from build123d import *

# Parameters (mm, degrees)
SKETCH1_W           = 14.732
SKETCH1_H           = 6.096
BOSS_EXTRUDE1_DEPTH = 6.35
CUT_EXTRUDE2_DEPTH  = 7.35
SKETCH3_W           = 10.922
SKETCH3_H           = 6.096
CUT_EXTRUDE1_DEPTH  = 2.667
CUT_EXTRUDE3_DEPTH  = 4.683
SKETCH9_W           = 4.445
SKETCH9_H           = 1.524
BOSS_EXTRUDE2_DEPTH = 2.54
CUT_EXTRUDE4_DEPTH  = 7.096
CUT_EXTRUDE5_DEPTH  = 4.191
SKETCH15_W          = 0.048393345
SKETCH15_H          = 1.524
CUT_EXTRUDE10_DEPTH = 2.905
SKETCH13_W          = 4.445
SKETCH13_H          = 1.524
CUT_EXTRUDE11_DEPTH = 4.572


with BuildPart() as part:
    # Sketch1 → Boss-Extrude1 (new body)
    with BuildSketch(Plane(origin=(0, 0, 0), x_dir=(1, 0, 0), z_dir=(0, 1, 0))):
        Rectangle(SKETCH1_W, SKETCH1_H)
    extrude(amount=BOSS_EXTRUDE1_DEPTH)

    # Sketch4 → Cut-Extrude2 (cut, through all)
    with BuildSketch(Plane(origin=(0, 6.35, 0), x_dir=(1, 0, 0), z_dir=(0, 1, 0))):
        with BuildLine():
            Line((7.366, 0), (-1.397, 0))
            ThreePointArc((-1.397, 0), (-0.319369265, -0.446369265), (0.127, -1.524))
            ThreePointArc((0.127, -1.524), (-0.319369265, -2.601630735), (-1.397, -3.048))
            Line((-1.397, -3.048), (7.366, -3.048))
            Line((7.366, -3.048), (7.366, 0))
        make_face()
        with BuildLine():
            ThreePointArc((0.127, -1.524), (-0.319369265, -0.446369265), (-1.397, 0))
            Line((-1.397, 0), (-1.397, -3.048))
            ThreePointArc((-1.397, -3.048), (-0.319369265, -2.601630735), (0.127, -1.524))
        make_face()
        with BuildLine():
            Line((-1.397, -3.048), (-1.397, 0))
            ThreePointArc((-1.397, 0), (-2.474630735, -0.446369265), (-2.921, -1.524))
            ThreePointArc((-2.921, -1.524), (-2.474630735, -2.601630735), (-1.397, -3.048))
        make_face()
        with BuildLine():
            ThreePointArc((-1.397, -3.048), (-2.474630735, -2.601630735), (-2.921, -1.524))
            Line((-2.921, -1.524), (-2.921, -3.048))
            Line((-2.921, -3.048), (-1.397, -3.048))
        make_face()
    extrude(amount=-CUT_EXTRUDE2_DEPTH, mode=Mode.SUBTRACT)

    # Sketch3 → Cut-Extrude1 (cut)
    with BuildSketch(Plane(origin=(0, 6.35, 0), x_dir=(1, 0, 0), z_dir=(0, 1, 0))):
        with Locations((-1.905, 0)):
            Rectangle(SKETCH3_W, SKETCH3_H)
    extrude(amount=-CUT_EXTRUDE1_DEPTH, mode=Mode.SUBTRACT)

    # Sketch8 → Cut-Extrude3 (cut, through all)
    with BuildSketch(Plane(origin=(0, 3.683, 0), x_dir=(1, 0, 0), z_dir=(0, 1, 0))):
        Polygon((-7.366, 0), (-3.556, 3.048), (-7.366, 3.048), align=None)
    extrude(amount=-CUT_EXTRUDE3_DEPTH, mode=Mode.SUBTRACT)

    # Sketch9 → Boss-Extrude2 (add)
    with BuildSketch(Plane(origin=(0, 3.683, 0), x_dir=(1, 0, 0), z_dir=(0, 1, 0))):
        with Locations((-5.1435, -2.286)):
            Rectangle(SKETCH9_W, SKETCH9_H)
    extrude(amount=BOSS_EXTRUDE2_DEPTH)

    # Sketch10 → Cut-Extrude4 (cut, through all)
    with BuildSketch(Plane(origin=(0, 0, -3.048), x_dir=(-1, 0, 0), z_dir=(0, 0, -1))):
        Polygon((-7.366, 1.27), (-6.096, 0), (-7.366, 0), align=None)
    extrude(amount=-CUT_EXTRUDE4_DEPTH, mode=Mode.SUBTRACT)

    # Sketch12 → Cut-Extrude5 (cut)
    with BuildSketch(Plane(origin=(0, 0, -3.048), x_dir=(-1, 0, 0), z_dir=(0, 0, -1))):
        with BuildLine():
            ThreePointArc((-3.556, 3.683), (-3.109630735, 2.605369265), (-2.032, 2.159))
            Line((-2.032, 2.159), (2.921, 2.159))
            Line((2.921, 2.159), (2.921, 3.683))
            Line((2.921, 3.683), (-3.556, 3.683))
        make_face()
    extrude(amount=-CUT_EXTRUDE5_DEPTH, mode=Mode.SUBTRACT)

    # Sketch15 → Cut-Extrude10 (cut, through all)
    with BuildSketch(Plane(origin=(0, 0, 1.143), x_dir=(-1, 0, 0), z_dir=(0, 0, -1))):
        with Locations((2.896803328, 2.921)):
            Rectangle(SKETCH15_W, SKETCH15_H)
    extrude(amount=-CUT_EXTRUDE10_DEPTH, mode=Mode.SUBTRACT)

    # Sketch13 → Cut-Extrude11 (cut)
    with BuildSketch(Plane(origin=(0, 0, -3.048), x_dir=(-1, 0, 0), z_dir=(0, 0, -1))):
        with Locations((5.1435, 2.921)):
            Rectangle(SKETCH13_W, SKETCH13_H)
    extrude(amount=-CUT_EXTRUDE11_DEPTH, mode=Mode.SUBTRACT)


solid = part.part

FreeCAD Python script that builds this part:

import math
import FreeCAD as App
import Part
import Sketcher
from FreeCAD import Vector
Q = App.Units.Quantity

doc = App.newDocument("Part")
body = doc.addObject("PartDesign::Body", "Body")

sketch1 = doc.addObject("Sketcher::SketchObject", "Sketch")
body.addObject(sketch1)
sketch1.AttachmentSupport = (doc.XZ_Plane, [""])
sketch1.MapMode = "FlatFace"
sketch1.addGeometry(Part.LineSegment(Vector(-7, -3, 0), Vector(-7, 3, 0)), False)
sketch1.addGeometry(Part.LineSegment(Vector(-7, 3, 0), Vector(7, 3, 0)), False)
sketch1.addGeometry(Part.LineSegment(Vector(7, 3, 0), Vector(7, -3, 0)), False)
sketch1.addGeometry(Part.LineSegment(Vector(7, -3, 0), Vector(-7, -3, 0)), False)
sketch1.addConstraint(Sketcher.Constraint("Coincident", 0, 2, 1, 1))
sketch1.addConstraint(Sketcher.Constraint("Coincident", 1, 2, 2, 1))
sketch1.addConstraint(Sketcher.Constraint("Coincident", 2, 2, 3, 1))
sketch1.addConstraint(Sketcher.Constraint("Coincident", 3, 2, 0, 1))
sketch1.addConstraint(Sketcher.Constraint("Vertical", 0))
sketch1.addConstraint(Sketcher.Constraint("Horizontal", 1))
sketch1.addConstraint(Sketcher.Constraint("Vertical", 2))
sketch1.addConstraint(Sketcher.Constraint("Horizontal", 3))
sketch1.addConstraint(Sketcher.Constraint("Symmetric", 0, 2, 2, 2, -1, 1))
sketch1.addConstraint(Sketcher.Constraint("DistanceX", 1, 1, 1, 2, Q("0.58 in")))
sketch1.addConstraint(Sketcher.Constraint("DistanceY", 0, 1, 0, 2, Q("0.24 in")))
pad1 = doc.addObject("PartDesign::Pad", "Pad")
body.addObject(pad1)
pad1.Profile = sketch1
pad1.Length = Q("0.25 in")
pad1.Reversed = True

sketch2 = doc.addObject("Sketcher::SketchObject", "Sketch001")
body.addObject(sketch2)
sketch2.AttachmentSupport = (doc.XZ_Plane, [""])
sketch2.MapMode = "FlatFace"
sketch2.AttachmentOffset = App.Placement(Vector(0, 0, -0.25 * 25.4), App.Rotation())
sketch2.addGeometry(Part.LineSegment(Vector(7.4, 3, 0), Vector(7.4, 0, 0)), False)
sketch2.addGeometry(Part.LineSegment(Vector(7.4, 0, 0), Vector(-1.4, 0, 0)), False)
sketch2.addGeometry(Part.ArcOfCircle(Part.Circle(Vector(-1.4, 1.5, 0), Vector(0, 0, 1), 1.5), math.radians(180), math.radians(270)), False)
sketch2.addGeometry(Part.LineSegment(Vector(-2.9, 1.5, 0), Vector(-2.9, 3, 0)), False)
sketch2.addGeometry(Part.LineSegment(Vector(-2.9, 3, 0), Vector(7.4, 3, 0)), False)
sketch2.addConstraint(Sketcher.Constraint("Coincident", 0, 2, 1, 1))
sketch2.addConstraint(Sketcher.Constraint("Tangent", 1, 2, 2, 2))
sketch2.addConstraint(Sketcher.Constraint("Tangent", 2, 1, 3, 1))
sketch2.addConstraint(Sketcher.Constraint("Coincident", 3, 2, 4, 1))
sketch2.addConstraint(Sketcher.Constraint("Coincident", 4, 2, 0, 1))
sketch2.addConstraint(Sketcher.Constraint("Vertical", 0))
sketch2.addConstraint(Sketcher.Constraint("Horizontal", 1))
sketch2.addConstraint(Sketcher.Constraint("Vertical", 3))
sketch2.addConstraint(Sketcher.Constraint("Horizontal", 4))
sketch2.addConstraint(Sketcher.Constraint("PointOnObject", 0, 2, -1))
sketch2.addConstraint(Sketcher.Constraint("Radius", 2, Q("0.06 in")))
sketch2.addConstraint(Sketcher.Constraint("DistanceY", 0, 2, 0, 1, Q("0.12 in")))
sketch2.addConstraint(Sketcher.Constraint("DistanceX", 1, 2, 1, 1, Q("0.345 in")))
sketch2.addConstraint(Sketcher.Constraint("DistanceX", -1, 1, 0, 2, Q("0.29 in")))
pocket1 = doc.addObject("PartDesign::Pocket", "Pocket")
body.addObject(pocket1)
pocket1.Profile = sketch2
pocket1.Type = "ThroughAll"
pocket1.Reversed = True

sketch3 = doc.addObject("Sketcher::SketchObject", "Sketch002")
body.addObject(sketch3)
sketch3.AttachmentSupport = (doc.XZ_Plane, [""])
sketch3.MapMode = "FlatFace"
sketch3.AttachmentOffset = App.Placement(Vector(0, 0, -0.25 * 25.4), App.Rotation())
sketch3.addGeometry(Part.LineSegment(Vector(-7, -3, 0), Vector(-7, 3, 0)), False)
sketch3.addGeometry(Part.LineSegment(Vector(-7, 3, 0), Vector(4, 3, 0)), False)
sketch3.addGeometry(Part.LineSegment(Vector(4, 3, 0), Vector(4, -3, 0)), False)
sketch3.addGeometry(Part.LineSegment(Vector(4, -3, 0), Vector(-7, -3, 0)), False)
sketch3.addConstraint(Sketcher.Constraint("Coincident", 0, 2, 1, 1))
sketch3.addConstraint(Sketcher.Constraint("Coincident", 1, 2, 2, 1))
sketch3.addConstraint(Sketcher.Constraint("Coincident", 2, 2, 3, 1))
sketch3.addConstraint(Sketcher.Constraint("Coincident", 3, 2, 0, 1))
sketch3.addConstraint(Sketcher.Constraint("Vertical", 0))
sketch3.addConstraint(Sketcher.Constraint("Horizontal", 1))
sketch3.addConstraint(Sketcher.Constraint("Vertical", 2))
sketch3.addConstraint(Sketcher.Constraint("Horizontal", 3))
sketch3.addConstraint(Sketcher.Constraint("DistanceX", 1, 1, 1, 2, Q("0.43 in")))
sketch3.addConstraint(Sketcher.Constraint("DistanceY", 0, 1, 0, 2, Q("0.24 in")))
sketch3.addConstraint(Sketcher.Constraint("DistanceX", 0, 2, -1, 1, Q("0.29 in")))
sketch3.addConstraint(Sketcher.Constraint("DistanceY", -1, 1, 0, 2, Q("0.12 in")))
pocket2 = doc.addObject("PartDesign::Pocket", "Pocket001")
body.addObject(pocket2)
pocket2.Profile = sketch3
pocket2.Length = Q("0.105 in")
pocket2.Reversed = True

sketch4 = doc.addObject("Sketcher::SketchObject", "Sketch003")
body.addObject(sketch4)
sketch4.AttachmentSupport = (doc.XZ_Plane, [""])
sketch4.MapMode = "FlatFace"
sketch4.AttachmentOffset = App.Placement(Vector(0, 0, -0.145 * 25.4), App.Rotation())
sketch4.addGeometry(Part.LineSegment(Vector(-7.4, 0, 0), Vector(-3.6, -3, 0)), False)
sketch4.addGeometry(Part.LineSegment(Vector(-3.6, -3, 0), Vector(-7.4, -3, 0)), False)
sketch4.addGeometry(Part.LineSegment(Vector(-7.4, -3, 0), Vector(-7.4, 0, 0)), False)
sketch4.addConstraint(Sketcher.Constraint("Coincident", 0, 2, 1, 1))
sketch4.addConstraint(Sketcher.Constraint("Coincident", 1, 2, 2, 1))
sketch4.addConstraint(Sketcher.Constraint("Coincident", 2, 2, 0, 1))
sketch4.addConstraint(Sketcher.Constraint("Horizontal", 1))
sketch4.addConstraint(Sketcher.Constraint("Vertical", 2))
sketch4.addConstraint(Sketcher.Constraint("PointOnObject", 2, 2, -1))
sketch4.addConstraint(Sketcher.Constraint("DistanceX", 1, 2, 1, 1, Q("0.15 in")))
sketch4.addConstraint(Sketcher.Constraint("DistanceY", 2, 1, 2, 2, Q("0.12 in")))
sketch4.addConstraint(Sketcher.Constraint("DistanceX", 0, 2, -1, 1, Q("0.14 in")))
pocket3 = doc.addObject("PartDesign::Pocket", "Pocket002")
body.addObject(pocket3)
pocket3.Profile = sketch4
pocket3.Type = "ThroughAll"
pocket3.Reversed = True

sketch5 = doc.addObject("Sketcher::SketchObject", "Sketch004")
body.addObject(sketch5)
sketch5.AttachmentSupport = (doc.XZ_Plane, [""])
sketch5.MapMode = "FlatFace"
sketch5.AttachmentOffset = App.Placement(Vector(0, 0, -0.145 * 25.4), App.Rotation())
sketch5.addGeometry(Part.LineSegment(Vector(-7.4, 1.5, 0), Vector(-7.4, 3, 0)), False)
sketch5.addGeometry(Part.LineSegment(Vector(-7.4, 3, 0), Vector(-2.9, 3, 0)), False)
sketch5.addGeometry(Part.LineSegment(Vector(-2.9, 3, 0), Vector(-2.9, 1.5, 0)), False)
sketch5.addGeometry(Part.LineSegment(Vector(-2.9, 1.5, 0), Vector(-7.4, 1.5, 0)), False)
sketch5.addConstraint(Sketcher.Constraint("Coincident", 0, 2, 1, 1))
sketch5.addConstraint(Sketcher.Constraint("Coincident", 1, 2, 2, 1))
sketch5.addConstraint(Sketcher.Constraint("Coincident", 2, 2, 3, 1))
sketch5.addConstraint(Sketcher.Constraint("Coincident", 3, 2, 0, 1))
sketch5.addConstraint(Sketcher.Constraint("Vertical", 0))
sketch5.addConstraint(Sketcher.Constraint("Horizontal", 1))
sketch5.addConstraint(Sketcher.Constraint("Vertical", 2))
sketch5.addConstraint(Sketcher.Constraint("Horizontal", 3))
sketch5.addConstraint(Sketcher.Constraint("DistanceY", 0, 1, 0, 2, Q("0.06 in")))
sketch5.addConstraint(Sketcher.Constraint("DistanceX", 1, 1, 1, 2, Q("0.175 in")))
sketch5.addConstraint(Sketcher.Constraint("DistanceX", 0, 2, -1, 1, Q("0.29 in")))
sketch5.addConstraint(Sketcher.Constraint("DistanceY", -1, 1, 0, 2, Q("0.12 in")))
pad2 = doc.addObject("PartDesign::Pad", "Pad001")
body.addObject(pad2)
pad2.Profile = sketch5
pad2.Length = Q("0.1 in")
pad2.Reversed = True

sketch6 = doc.addObject("Sketcher::SketchObject", "Sketch005")
body.addObject(sketch6)
sketch6.AttachmentSupport = (doc.XY_Plane, [""])
sketch6.MapMode = "FlatFace"
sketch6.AttachmentOffset = App.Placement(Vector(0, 0, -0.12 * 25.4), App.Rotation())
sketch6.addGeometry(Part.LineSegment(Vector(6.1, 0, 0), Vector(7.4, 1.3, 0)), False)
sketch6.addGeometry(Part.LineSegment(Vector(7.4, 1.3, 0), Vector(7.4, 0, 0)), False)
sketch6.addGeometry(Part.LineSegment(Vector(7.4, 0, 0), Vector(6.1, 0, 0)), False)
sketch6.addConstraint(Sketcher.Constraint("Coincident", 0, 2, 1, 1))
sketch6.addConstraint(Sketcher.Constraint("Coincident", 1, 2, 2, 1))
sketch6.addConstraint(Sketcher.Constraint("Coincident", 2, 2, 0, 1))
sketch6.addConstraint(Sketcher.Constraint("Vertical", 1))
sketch6.addConstraint(Sketcher.Constraint("Horizontal", 2))
sketch6.addConstraint(Sketcher.Constraint("PointOnObject", 1, 2, -1))
sketch6.addConstraint(Sketcher.Constraint("Equal", 2, 1))
sketch6.addConstraint(Sketcher.Constraint("DistanceX", 2, 2, 2, 1, Q("0.05 in")))
sketch6.addConstraint(Sketcher.Constraint("DistanceX", -1, 1, 0, 2, Q("0.29 in")))
pocket4 = doc.addObject("PartDesign::Pocket", "Pocket003")
body.addObject(pocket4)
pocket4.Profile = sketch6
pocket4.Type = "ThroughAll"
pocket4.Reversed = True

sketch7 = doc.addObject("Sketcher::SketchObject", "Sketch006")
body.addObject(sketch7)
sketch7.AttachmentSupport = (doc.XY_Plane, [""])
sketch7.MapMode = "FlatFace"
sketch7.AttachmentOffset = App.Placement(Vector(0, 0, -0.12 * 25.4), App.Rotation())
sketch7.addGeometry(Part.ArcOfCircle(Part.Circle(Vector(2, 3.7, 0), Vector(0, 0, 1), 1.5), math.radians(-90), math.radians(0)), False)
sketch7.addGeometry(Part.LineSegment(Vector(2, 2.2, 0), Vector(-2.9, 2.2, 0)), False)
sketch7.addGeometry(Part.LineSegment(Vector(-2.9, 2.2, 0), Vector(-2.9, 3.7, 0)), False)
sketch7.addGeometry(Part.LineSegment(Vector(-2.9, 3.7, 0), Vector(3.6, 3.7, 0)), False)
sketch7.addConstraint(Sketcher.Constraint("Tangent", 0, 1, 1, 1))
sketch7.addConstraint(Sketcher.Constraint("Coincident", 1, 2, 2, 1))
sketch7.addConstraint(Sketcher.Constraint("Coincident", 2, 2, 3, 1))
sketch7.addConstraint(Sketcher.Constraint("Coincident", 3, 2, 0, 2))
sketch7.addConstraint(Sketcher.Constraint("Horizontal", 1))
sketch7.addConstraint(Sketcher.Constraint("Vertical", 2))
sketch7.addConstraint(Sketcher.Constraint("Horizontal", 3))
sketch7.addConstraint(Sketcher.Constraint("Horizontal", 0, 3, 2, 2))
sketch7.addConstraint(Sketcher.Constraint("Radius", 0, Q("0.06 in")))
sketch7.addConstraint(Sketcher.Constraint("DistanceX", 1, 2, 1, 1, Q("0.195 in")))
sketch7.addConstraint(Sketcher.Constraint("DistanceX", -1, 1, 0, 3, Q("0.08 in")))
sketch7.addConstraint(Sketcher.Constraint("DistanceY", -1, 1, 0, 3, Q("0.145 in")))
pocket5 = doc.addObject("PartDesign::Pocket", "Pocket004")
body.addObject(pocket5)
pocket5.Profile = sketch7
pocket5.Length = Q("0.165 in")
pocket5.Reversed = True

sketch8 = doc.addObject("Sketcher::SketchObject", "Sketch007")
body.addObject(sketch8)
sketch8.AttachmentSupport = (doc.XY_Plane, [""])
sketch8.MapMode = "FlatFace"
sketch8.AttachmentOffset = App.Placement(Vector(0, 0, 0.045 * 25.4), App.Rotation())
sketch8.addGeometry(Part.LineSegment(Vector(-2.873, 3.683, 0), Vector(-2.873, 2.159, 0)), False)
sketch8.addGeometry(Part.LineSegment(Vector(-2.873, 2.159, 0), Vector(-2.921, 2.159, 0)), False)
sketch8.addGeometry(Part.LineSegment(Vector(-2.921, 2.159, 0), Vector(-2.921, 3.683, 0)), False)
sketch8.addGeometry(Part.LineSegment(Vector(-2.921, 3.683, 0), Vector(-2.873, 3.683, 0)), False)
sketch8.addConstraint(Sketcher.Constraint("Coincident", 0, 2, 1, 1))
sketch8.addConstraint(Sketcher.Constraint("Coincident", 1, 2, 2, 1))
sketch8.addConstraint(Sketcher.Constraint("Coincident", 2, 2, 3, 1))
sketch8.addConstraint(Sketcher.Constraint("Coincident", 3, 2, 0, 1))
sketch8.addConstraint(Sketcher.Constraint("Vertical", 0))
sketch8.addConstraint(Sketcher.Constraint("Horizontal", 1))
sketch8.addConstraint(Sketcher.Constraint("Vertical", 2))
sketch8.addConstraint(Sketcher.Constraint("Horizontal", 3))
sketch8.addConstraint(Sketcher.Constraint("DistanceY", 0, 2, 0, 1, Q("0.06 in")))
sketch8.addConstraint(Sketcher.Constraint("DistanceY", -1, 1, 0, 2, Q("0.085 in")))
sketch8.addConstraint(Sketcher.Constraint("DistanceX", 1, 2, -1, 1, Q("0.115 in")))
sketch8.addConstraint(Sketcher.Constraint("DistanceX", 1, 2, 1, 1, Q("0.048393 mm")))
pocket6 = doc.addObject("PartDesign::Pocket", "Pocket005")
body.addObject(pocket6)
pocket6.Profile = sketch8
pocket6.Type = "ThroughAll"
pocket6.Reversed = True

sketch9 = doc.addObject("Sketcher::SketchObject", "Sketch008")
body.addObject(sketch9)
sketch9.AttachmentSupport = (doc.XY_Plane, [""])
sketch9.MapMode = "FlatFace"
sketch9.AttachmentOffset = App.Placement(Vector(0, 0, -0.12 * 25.4), App.Rotation())
sketch9.addGeometry(Part.LineSegment(Vector(-2.9, 3.7, 0), Vector(-2.9, 2.2, 0)), False)
sketch9.addGeometry(Part.LineSegment(Vector(-2.9, 2.2, 0), Vector(-7.4, 2.2, 0)), False)
sketch9.addGeometry(Part.LineSegment(Vector(-7.4, 2.2, 0), Vector(-7.4, 3.7, 0)), False)
sketch9.addGeometry(Part.LineSegment(Vector(-7.4, 3.7, 0), Vector(-2.9, 3.7, 0)), False)
sketch9.addConstraint(Sketcher.Constraint("Coincident", 0, 2, 1, 1))
sketch9.addConstraint(Sketcher.Constraint("Coincident", 1, 2, 2, 1))
sketch9.addConstraint(Sketcher.Constraint("Coincident", 2, 2, 3, 1))
sketch9.addConstraint(Sketcher.Constraint("Coincident", 3, 2, 0, 1))
sketch9.addConstraint(Sketcher.Constraint("Vertical", 0))
sketch9.addConstraint(Sketcher.Constraint("Horizontal", 1))
sketch9.addConstraint(Sketcher.Constraint("Vertical", 2))
sketch9.addConstraint(Sketcher.Constraint("Horizontal", 3))
sketch9.addConstraint(Sketcher.Constraint("DistanceY", 0, 2, 0, 1, Q("0.06 in")))
sketch9.addConstraint(Sketcher.Constraint("DistanceX", 1, 2, 1, 1, Q("0.175 in")))
sketch9.addConstraint(Sketcher.Constraint("DistanceX", 1, 2, -1, 1, Q("0.29 in")))
sketch9.addConstraint(Sketcher.Constraint("DistanceY", -1, 1, 0, 2, Q("0.085 in")))
pocket7 = doc.addObject("PartDesign::Pocket", "Pocket006")
body.addObject(pocket7)
pocket7.Profile = sketch9
pocket7.Length = Q("0.18 in")
pocket7.Reversed = True

doc.recompute()
